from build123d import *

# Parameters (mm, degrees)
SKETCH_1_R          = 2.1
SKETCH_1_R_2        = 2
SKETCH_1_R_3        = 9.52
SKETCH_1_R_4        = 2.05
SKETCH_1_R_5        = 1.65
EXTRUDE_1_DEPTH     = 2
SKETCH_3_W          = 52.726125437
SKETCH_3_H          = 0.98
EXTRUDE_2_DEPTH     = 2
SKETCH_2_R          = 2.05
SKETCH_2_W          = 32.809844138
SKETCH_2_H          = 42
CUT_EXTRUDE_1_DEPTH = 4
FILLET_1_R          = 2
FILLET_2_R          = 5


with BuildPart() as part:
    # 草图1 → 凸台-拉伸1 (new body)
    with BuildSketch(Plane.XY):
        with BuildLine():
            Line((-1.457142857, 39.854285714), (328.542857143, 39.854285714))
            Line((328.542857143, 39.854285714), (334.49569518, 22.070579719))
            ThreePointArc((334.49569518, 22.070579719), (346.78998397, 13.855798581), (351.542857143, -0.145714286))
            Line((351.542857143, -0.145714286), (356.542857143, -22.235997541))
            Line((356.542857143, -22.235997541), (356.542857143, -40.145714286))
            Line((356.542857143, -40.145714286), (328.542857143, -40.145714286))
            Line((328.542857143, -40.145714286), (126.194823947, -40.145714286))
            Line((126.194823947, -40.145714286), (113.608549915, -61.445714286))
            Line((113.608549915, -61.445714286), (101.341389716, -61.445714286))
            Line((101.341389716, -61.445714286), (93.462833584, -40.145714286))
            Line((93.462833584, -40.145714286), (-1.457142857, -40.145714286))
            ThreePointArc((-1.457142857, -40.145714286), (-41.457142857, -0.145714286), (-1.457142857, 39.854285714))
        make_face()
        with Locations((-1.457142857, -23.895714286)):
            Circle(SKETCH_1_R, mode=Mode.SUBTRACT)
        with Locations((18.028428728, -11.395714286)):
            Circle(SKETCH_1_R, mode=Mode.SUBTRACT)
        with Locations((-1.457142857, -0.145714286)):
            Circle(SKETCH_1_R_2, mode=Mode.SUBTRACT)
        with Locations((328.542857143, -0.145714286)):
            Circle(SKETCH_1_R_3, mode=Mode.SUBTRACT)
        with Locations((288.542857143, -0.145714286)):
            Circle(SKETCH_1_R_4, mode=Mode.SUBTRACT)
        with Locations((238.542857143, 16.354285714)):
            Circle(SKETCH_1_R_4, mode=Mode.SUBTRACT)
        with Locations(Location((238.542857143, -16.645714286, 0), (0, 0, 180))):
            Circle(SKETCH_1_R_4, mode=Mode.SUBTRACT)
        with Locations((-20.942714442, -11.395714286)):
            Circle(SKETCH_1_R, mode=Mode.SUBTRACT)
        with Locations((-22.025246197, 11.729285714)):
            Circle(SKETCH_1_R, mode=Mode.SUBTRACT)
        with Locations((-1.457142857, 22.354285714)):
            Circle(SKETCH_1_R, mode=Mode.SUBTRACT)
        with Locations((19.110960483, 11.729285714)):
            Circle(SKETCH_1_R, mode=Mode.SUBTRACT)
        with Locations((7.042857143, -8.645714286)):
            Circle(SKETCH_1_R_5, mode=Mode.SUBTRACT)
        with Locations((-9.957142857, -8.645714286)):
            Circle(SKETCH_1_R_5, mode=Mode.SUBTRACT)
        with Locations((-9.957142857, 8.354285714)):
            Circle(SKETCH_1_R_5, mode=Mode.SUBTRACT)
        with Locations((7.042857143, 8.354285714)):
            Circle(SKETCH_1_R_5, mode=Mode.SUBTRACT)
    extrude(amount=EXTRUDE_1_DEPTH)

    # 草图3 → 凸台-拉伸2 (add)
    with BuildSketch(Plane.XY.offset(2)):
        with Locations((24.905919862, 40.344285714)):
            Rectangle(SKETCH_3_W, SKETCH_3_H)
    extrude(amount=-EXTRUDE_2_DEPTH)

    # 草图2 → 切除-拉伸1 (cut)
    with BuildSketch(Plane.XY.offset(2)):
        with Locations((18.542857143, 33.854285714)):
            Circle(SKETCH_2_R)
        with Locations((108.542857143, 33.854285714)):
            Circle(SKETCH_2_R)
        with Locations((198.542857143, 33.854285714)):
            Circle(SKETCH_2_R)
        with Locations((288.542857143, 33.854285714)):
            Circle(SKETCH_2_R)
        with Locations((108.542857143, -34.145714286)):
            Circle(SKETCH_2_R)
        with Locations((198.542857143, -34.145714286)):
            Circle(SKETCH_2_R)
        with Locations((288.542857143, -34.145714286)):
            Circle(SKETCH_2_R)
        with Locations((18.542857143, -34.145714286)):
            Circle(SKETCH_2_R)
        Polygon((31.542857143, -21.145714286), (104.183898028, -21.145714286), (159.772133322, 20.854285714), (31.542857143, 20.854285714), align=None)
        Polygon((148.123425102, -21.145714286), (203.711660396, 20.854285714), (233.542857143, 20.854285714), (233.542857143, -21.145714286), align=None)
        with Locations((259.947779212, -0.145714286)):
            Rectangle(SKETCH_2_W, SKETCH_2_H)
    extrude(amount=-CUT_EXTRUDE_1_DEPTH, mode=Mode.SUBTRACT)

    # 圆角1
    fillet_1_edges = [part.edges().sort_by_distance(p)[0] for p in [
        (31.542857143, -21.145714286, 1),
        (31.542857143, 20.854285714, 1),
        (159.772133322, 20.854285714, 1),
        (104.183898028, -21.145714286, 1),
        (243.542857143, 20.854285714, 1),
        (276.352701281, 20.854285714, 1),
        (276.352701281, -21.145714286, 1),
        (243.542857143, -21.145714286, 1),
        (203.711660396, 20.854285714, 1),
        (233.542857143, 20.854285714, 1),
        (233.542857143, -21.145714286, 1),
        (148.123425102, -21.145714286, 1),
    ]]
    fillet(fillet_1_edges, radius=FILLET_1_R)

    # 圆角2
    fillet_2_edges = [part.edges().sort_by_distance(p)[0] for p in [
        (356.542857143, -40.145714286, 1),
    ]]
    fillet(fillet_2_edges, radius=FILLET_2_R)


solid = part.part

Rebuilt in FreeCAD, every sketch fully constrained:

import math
import FreeCAD as App
import Part
import Sketcher


def edges_at(feature, points):
    """Names of the edges that pass closest to the given points."""
    edges = feature.Shape.Edges
    near = lambda p: min(range(len(edges)), key=lambda i: edges[i].distToShape(Part.Vertex(*p))[0])
    return sorted({f"Edge{near(p) + 1}" for p in points})


def add_polygon(sketch, points):
    """Adds a closed chain of lines whose ends are joined by coincident constraints."""
    first, n = sketch.GeometryCount, len(points)
    for a, b in zip(points, points[1:] + points[:1]):
        sketch.addGeometry(Part.LineSegment(App.Vector(*a, 0), App.Vector(*b, 0)), False)
    for i in range(n):
        sketch.addConstraint(Sketcher.Constraint("Coincident", first + i, 2, first + (i + 1) % n, 1))

doc = App.newDocument("Part")
body = doc.addObject("PartDesign::Body", "Body")

# Sketch on XY plane
sketch1 = body.newObject("Sketcher::SketchObject", "Sketch")
sketch1.AttachmentSupport = (doc.getObject("XY_Plane"), [""])
sketch1.MapMode = "FlatFace"
sketch1.addGeometry(Part.LineSegment(App.Vector(328.542857, 39.854286, 0), App.Vector(-1.457143, 39.854286, 0)), False)
sketch1.addGeometry(Part.ArcOfCircle(Part.Circle(App.Vector(-1.457143, -0.145714, 0), App.Vector(0, 0, 1), 40), math.radians(90), math.radians(270)), False)
sketch1.addGeometry(Part.LineSegment(App.Vector(-1.457143, -40.145714, 0), App.Vector(93.462834, -40.145714, 0)), False)
sketch1.addGeometry(Part.LineSegment(App.Vector(93.462834, -40.145714, 0), App.Vector(101.34139, -61.445714, 0)), False)
sketch1.addGeometry(Part.LineSegment(App.Vector(101.34139, -61.445714, 0), App.Vector(113.60855, -61.445714, 0)), False)
sketch1.addGeometry(Part.LineSegment(App.Vector(113.60855, -61.445714, 0), App.Vector(126.194824, -40.145714, 0)), False)
sketch1.addGeometry(Part.LineSegment(App.Vector(126.194824, -40.145714, 0), App.Vector(356.542857, -40.145714, 0)), False)
sketch1.addGeometry(Part.LineSegment(App.Vector(356.542857, -40.145714, 0), App.Vector(356.542857, -22.235998, 0)), False)
sketch1.addGeometry(Part.LineSegment(App.Vector(356.542857, -22.235998, 0), App.Vector(351.542857, -0.145714, 0)), False)
sketch1.addGeometry(Part.ArcOfCircle(Part.Circle(App.Vector(328.542857, -0.145714, 0), App.Vector(0, 0, 1), 23), math.radians(0), math.radians(75)), False)
sketch1.addGeometry(Part.LineSegment(App.Vector(334.495695, 22.07058, 0), App.Vector(328.542857, 39.854286, 0)), False)
sketch1.addGeometry(Part.Circle(App.Vector(238.542857, -16.645714, 0), App.Vector(0, 0, 1), 2.05), False)
sketch1.addGeometry(Part.Circle(App.Vector(-1.457143, -23.895714, 0), App.Vector(0, 0, 1), 2.1), False)
sketch1.addGeometry(Part.Circle(App.Vector(18.028429, -11.395714, 0), App.Vector(0, 0, 1), 2.1), False)
sketch1.addGeometry(Part.Circle(App.Vector(-20.942714, -11.395714, 0), App.Vector(0, 0, 1), 2.1), False)
sketch1.addGeometry(Part.Circle(App.Vector(7.042857, -8.645714, 0), App.Vector(0, 0, 1), 1.65), False)
sketch1.addGeometry(Part.Circle(App.Vector(-9.957143, -8.645714, 0), App.Vector(0, 0, 1), 1.65), False)
sketch1.addGeometry(Part.Circle(App.Vector(328.542857, -0.145714, 0), App.Vector(0, 0, 1), 9.52), False)
sketch1.addGeometry(Part.Circle(App.Vector(288.542857, -0.145714, 0), App.Vector(0, 0, 1), 2.05), False)
sketch1.addGeometry(Part.Circle(App.Vector(238.542857, 16.354286, 0), App.Vector(0, 0, 1), 2.05), False)
sketch1.addGeometry(Part.Circle(App.Vector(-1.457143, -0.145714, 0), App.Vector(0, 0, 1), 2), False)
sketch1.addGeometry(Part.Circle(App.Vector(7.042857, 8.354286, 0), App.Vector(0, 0, 1), 1.65), False)
sketch1.addGeometry(Part.Circle(App.Vector(-9.957143, 8.354286, 0), App.Vector(0, 0, 1), 1.65), False)
sketch1.addGeometry(Part.Circle(App.Vector(19.11096, 11.729286, 0), App.Vector(0, 0, 1), 2.1), False)
sketch1.addGeometry(Part.Circle(App.Vector(-22.025246, 11.729286, 0), App.Vector(0, 0, 1), 2.1), False)
sketch1.addGeometry(Part.Circle(App.Vector(-1.457143, 22.354286, 0), App.Vector(0, 0, 1), 2.1), False)
sketch1.addConstraint(Sketcher.Constraint("Tangent", 0, 2, 1, 1))
sketch1.addConstraint(Sketcher.Constraint("Tangent", 1, 2, 2, 1))
sketch1.addConstraint(Sketcher.Constraint("Coincident", 2, 2, 3, 1))
sketch1.addConstraint(Sketcher.Constraint("Coincident", 3, 2, 4, 1))
sketch1.addConstraint(Sketcher.Constraint("Coincident", 4, 2, 5, 1))
sketch1.addConstraint(Sketcher.Constraint("Coincident", 5, 2, 6, 1))
sketch1.addConstraint(Sketcher.Constraint("Coincident", 6, 2, 7, 1))
sketch1.addConstraint(Sketcher.Constraint("Coincident", 7, 2, 8, 1))
sketch1.addConstraint(Sketcher.Constraint("Coincident", 8, 2, 9, 1))
sketch1.addConstraint(Sketcher.Constraint("Coincident", 9, 2, 10, 1))
sketch1.addConstraint(Sketcher.Constraint("Coincident", 10, 2, 0, 1))
sketch1.addConstraint(Sketcher.Constraint("Horizontal", 0))
sketch1.addConstraint(Sketcher.Constraint("Horizontal", 2))
sketch1.addConstraint(Sketcher.Constraint("Horizontal", 4))
sketch1.addConstraint(Sketcher.Constraint("Horizontal", 6))
sketch1.addConstraint(Sketcher.Constraint("Vertical", 7))
sketch1.addConstraint(Sketcher.Constraint("Coincident", 17, 3, 9, 3))
sketch1.addConstraint(Sketcher.Constraint("Coincident", 20, 3, 1, 3))
sketch1.addConstraint(Sketcher.Constraint("Equal", 12, 13))
sketch1.addConstraint(Sketcher.Constraint("Equal", 13, 14))
sketch1.addConstraint(Sketcher.Constraint("Equal", 15, 16))
sketch1.addConstraint(Sketcher.Constraint("Equal", 11, 18))
sketch1.addConstraint(Sketcher.Constraint("Equal", 18, 19))
sketch1.addConstraint(Sketcher.Constraint("Equal", 16, 21))
sketch1.addConstraint(Sketcher.Constraint("Equal", 21, 22))
sketch1.addConstraint(Sketcher.Constraint("Equal", 14, 23))
sketch1.addConstraint(Sketcher.Constraint("Equal", 23, 24))
sketch1.addConstraint(Sketcher.Constraint("Equal", 24, 25))
sketch1.addConstraint(Sketcher.Constraint("Horizontal", 1, 3, 9, 3))
sketch1.addConstraint(Sketcher.Constraint("Horizontal", 13, 3, 14, 3))
sketch1.addConstraint(Sketcher.Constraint("Horizontal", 15, 3, 16, 3))
sketch1.addConstraint(Sketcher.Constraint("Horizontal", 17, 3, 18, 3))
sketch1.addConstraint(Sketcher.Constraint("Horizontal", 21, 3, 22, 3))
sketch1.addConstraint(Sketcher.Constraint("Horizontal", 23, 3, 24, 3))
sketch1.addConstraint(Sketcher.Constraint("Horizontal", 2, 2, 5, 2))
sketch1.addConstraint(Sketcher.Constraint("Horizontal", 20, 3, 8, 2))
sketch1.addConstraint(Sketcher.Constraint("Vertical", 1, 3, 12, 3))
sketch1.addConstraint(Sketcher.Constraint("Vertical", 11, 3, 19, 3))
sketch1.addConstraint(Sketcher.Constraint("Vertical", 15, 3, 21, 3))
sketch1.addConstraint(Sketcher.Constraint("Vertical", 16, 3, 22, 3))
sketch1.addConstraint(Sketcher.Constraint("Vertical", 20, 3, 25, 3))
sketch1.addConstraint(Sketcher.Constraint("Vertical", 17, 3, 10, 2))
sketch1.addConstraint(Sketcher.Constraint("Diameter", 20, 4.0))
sketch1.addConstraint(Sketcher.Constraint("Radius", 1, 40.0))
sketch1.addConstraint(Sketcher.Constraint("Radius", 9, 23.0))
sketch1.addConstraint(Sketcher.Constraint("Diameter", 11, 4.1))
sketch1.addConstraint(Sketcher.Constraint("Diameter", 12, 4.2))
sketch1.addConstraint(Sketcher.Constraint("Diameter", 15, 3.3))
sketch1.addConstraint(Sketcher.Constraint("Diameter", 17, 19.04))
sketch1.addConstraint(Sketcher.Constraint("DistanceX", 0, 2, 0, 1, 330.0))
sketch1.addConstraint(Sketcher.Constraint("DistanceX", 11, 3, 9, 3, 90.0))
sketch1.addConstraint(Sketcher.Constraint("DistanceY", 11, 3, 15, 3, 8.0))
sketch1.addConstraint(Sketcher.Constraint("DistanceX", 16, 3, 15, 3, 17.0))
sketch1.addConstraint(Sketcher.Constraint("DistanceX", 18, 3, 9, 3, 40.0))
sketch1.addConstraint(Sketcher.Constraint("DistanceY", 11, 3, 19, 3, 33.0))
sketch1.addConstraint(Sketcher.Constraint("DistanceY", 15, 3, 21, 3, 17.0))
sketch1.addConstraint(Sketcher.Constraint("DistanceY", 21, 3, 25, 3, 14.0))
sketch1.addConstraint(Sketcher.Constraint("DistanceX", 9, 3, 6, 2, 28.0))
sketch1.addConstraint(Sketcher.Constraint("DistanceY", 11, 3, 9, 3, 16.5))
sketch1.addConstraint(Sketcher.Constraint("DistanceY", 12, 3, 13, 3, 12.5))
sketch1.addConstraint(Sketcher.Constraint("DistanceX", 1, 3, 15, 3, 8.5))
sketch1.addConstraint(Sketcher.Constraint("DistanceY", 3, 2, 2, 2, 21.3))
sketch1.addConstraint(Sketcher.Constraint("DistanceY", 12, 3, 1, 3, 23.75))
sketch1.addConstraint(Sketcher.Constraint("DistanceY", 21, 3, 23, 3, 3.375))
sketch1.addConstraint(Sketcher.Constraint("DistanceX", 4, 1, 4, 2, 12.26716))
sketch1.addConstraint(Sketcher.Constraint("Distance", 5, 24.740742))
sketch1.addConstraint(Sketcher.Constraint("DistanceX", 2, 1, 2, 2, 94.919976))
sketch1.addConstraint(Sketcher.Constraint("DistanceX", 6, 1, 6, 2, 230.348033))
sketch1.addConstraint(Sketcher.Constraint("DistanceY", 7, 1, 7, 2, 17.909717))
sketch1.addConstraint(Sketcher.Constraint("DistanceX", -1, 1, 13, 3, 18.028429))
sketch1.addConstraint(Sketcher.Constraint("DistanceX", -1, 1, 23, 3, 19.11096))
sketch1.addConstraint(Sketcher.Constraint("DistanceX", -1, 1, 3, 2, 101.34139))
sketch1.addConstraint(Sketcher.Constraint("DistanceY", -1, 1, 9, 2, 22.07058))
sketch1.addConstraint(Sketcher.Constraint("DistanceX", 14, 3, 1, 3, 19.485572))
sketch1.addConstraint(Sketcher.Constraint("DistanceX", 24, 3, 14, 3, 1.082532))
sketch1.addConstraint(Sketcher.Constraint("DistanceX", 9, 3, 9, 2, 5.952838))
pad1 = body.newObject("PartDesign::Pad", "Pad")
pad1.Profile = sketch1
pad1.Length = 2

# Sketch on XY plane
sketch2 = body.newObject("Sketcher::SketchObject", "Sketch001")
sketch2.AttachmentSupport = (doc.getObject("XY_Plane"), [""])
sketch2.MapMode = "FlatFace"
sketch2.AttachmentOffset = App.Placement(App.Vector(0, 0, 2), App.Rotation())
add_polygon(sketch2, [(-1.457143, 40.834286), (-1.457143, 39.854286), (51.268983, 39.854286), (51.268983, 40.834286)])  # lines 0-3
sketch2.addConstraint(Sketcher.Constraint("Vertical", 0))
sketch2.addConstraint(Sketcher.Constraint("Horizontal", 1))
sketch2.addConstraint(Sketcher.Constraint("Vertical", 2))
sketch2.addConstraint(Sketcher.Constraint("Horizontal", 3))
sketch2.addConstraint(Sketcher.Constraint("DistanceY", 0, 2, 0, 1, 0.98))
sketch2.addConstraint(Sketcher.Constraint("DistanceX", 1, 1, 1, 2, 52.726125))
sketch2.addConstraint(Sketcher.Constraint("DistanceX", 0, 2, -1, 1, 1.457143))
sketch2.addConstraint(Sketcher.Constraint("DistanceY", -1, 1, 0, 2, 39.854286))
pad2 = body.newObject("PartDesign::Pad", "Pad001")
pad2.Profile = sketch2
pad2.Length = 2
pad2.Reversed = True

# Sketch on XY plane
sketch3 = body.newObject("Sketcher::SketchObject", "Sketch002")
sketch3.AttachmentSupport = (doc.getObject("XY_Plane"), [""])
sketch3.MapMode = "FlatFace"
sketch3.AttachmentOffset = App.Placement(App.Vector(0, 0, 2), App.Rotation())
sketch3.addGeometry(Part.Circle(App.Vector(18.542857, 33.854286, 0), App.Vector(0, 0, 1), 2.05), False)  # 0
sketch3.addGeometry(Part.Circle(App.Vector(108.542857, 33.854286, 0), App.Vector(0, 0, 1), 2.05), False)  # 1
sketch3.addGeometry(Part.Circle(App.Vector(198.542857, 33.854286, 0), App.Vector(0, 0, 1), 2.05), False)  # 2
sketch3.addGeometry(Part.Circle(App.Vector(288.542857, 33.854286, 0), App.Vector(0, 0, 1), 2.05), False)  # 3
sketch3.addGeometry(Part.Circle(App.Vector(108.542857, -34.145714, 0), App.Vector(0, 0, 1), 2.05), False)  # 4
sketch3.addGeometry(Part.Circle(App.Vector(198.542857, -34.145714, 0), App.Vector(0, 0, 1), 2.05), False)  # 5
sketch3.addGeometry(Part.Circle(App.Vector(288.542857, -34.145714, 0), App.Vector(0, 0, 1), 2.05), False)  # 6
sketch3.addGeometry(Part.Circle(App.Vector(18.542857, -34.145714, 0), App.Vector(0, 0, 1), 2.05), False)  # 7
add_polygon(sketch3, [(31.542857, -21.145714), (104.183898, -21.145714), (159.772133, 20.854286), (31.542857, 20.854286)])  # lines 8-11
add_polygon(sketch3, [(203.71166, 20.854286), (148.123425, -21.145714), (233.542857, -21.145714), (233.542857, 20.854286)])  # lines 12-15
add_polygon(sketch3, [(243.542857, 20.854286), (243.542857, -21.145714), (276.352701, -21.145714), (276.352701, 20.854286)])  # lines 16-19
sketch3.addConstraint(Sketcher.Constraint("Horizontal", 8))
sketch3.addConstraint(Sketcher.Constraint("Horizontal", 10))
sketch3.addConstraint(Sketcher.Constraint("Vertical", 11))
sketch3.addConstraint(Sketcher.Constraint("Horizontal", 13))
sketch3.addConstraint(Sketcher.Constraint("Vertical", 14))
sketch3.addConstraint(Sketcher.Constraint("Horizontal", 15))
sketch3.addConstraint(Sketcher.Constraint("Vertical", 16))
sketch3.addConstraint(Sketcher.Constraint("Horizontal", 17))
sketch3.addConstraint(Sketcher.Constraint("Vertical", 18))
sketch3.addConstraint(Sketcher.Constraint("Horizontal", 19))
sketch3.addConstraint(Sketcher.Constraint("Equal", 0, 1))
sketch3.addConstraint(Sketcher.Constraint("Equal", 1, 2))
sketch3.addConstraint(Sketcher.Constraint("Equal", 2, 3))
sketch3.addConstraint(Sketcher.Constraint("Equal", 3, 4))
sketch3.addConstraint(Sketcher.Constraint("Equal", 4, 5))
sketch3.addConstraint(Sketcher.Constraint("Equal", 5, 6))
sketch3.addConstraint(Sketcher.Constraint("Equal", 6, 7))
sketch3.addConstraint(Sketcher.Constraint("Parallel", 9, 12))
sketch3.addConstraint(Sketcher.Constraint("Horizontal", 0, 3, 1, 3))
sketch3.addConstraint(Sketcher.Constraint("Horizontal", 1, 3, 2, 3))
sketch3.addConstraint(Sketcher.Constraint("Horizontal", 2, 3, 3, 3))
sketch3.addConstraint(Sketcher.Constraint("Horizontal", 4, 3, 5, 3))
sketch3.addConstraint(Sketcher.Constraint("Horizontal", 5, 3, 6, 3))
sketch3.addConstraint(Sketcher.Constraint("Horizontal", 6, 3, 7, 3))
sketch3.addConstraint(Sketcher.Constraint("Horizontal", 11, 2, 12, 2))
sketch3.addConstraint(Sketcher.Constraint("Horizontal", 10, 2, 14, 2))
sketch3.addConstraint(Sketcher.Constraint("Horizontal", 13, 2, 16, 2))
sketch3.addConstraint(Sketcher.Constraint("Horizontal", 15, 2, 18, 2))
sketch3.addConstraint(Sketcher.Constraint("Vertical", 1, 3, 4, 3))
sketch3.addConstraint(Sketcher.Constraint("Vertical", 2, 3, 5, 3))
sketch3.addConstraint(Sketcher.Constraint("Vertical", 3, 3, 6, 3))
sketch3.addConstraint(Sketcher.Constraint("Vertical", 0, 3, 7, 3))
sketch3.addConstraint(Sketcher.Constraint("Diameter", 0, 4.1))
sketch3.addConstraint(Sketcher.Constraint("DistanceY", 11, 2, 11, 1, 42.0))
sketch3.addConstraint(Sketcher.Constraint("DistanceX", 0, 3, 1, 3, 90.0))
sketch3.addConstraint(Sketcher.Constraint("DistanceX", 1, 3, 2, 3, 90.0))
sketch3.addConstraint(Sketcher.Constraint("DistanceX", 2, 3, 3, 3, 90.0))
sketch3.addConstraint(Sketcher.Constraint("DistanceY", 4, 3, 1, 3, 68.0))
sketch3.addConstraint(Sketcher.Constraint("DistanceY", 4, 3, 8, 2, 13.0))
sketch3.addConstraint(Sketcher.Constraint("DistanceX", 0, 3, 10, 2, 13.0))
sketch3.addConstraint(Sketcher.Constraint("DistanceX", 5, 3, 13, 2, 35.0))
sketch3.addConstraint(Sketcher.Constraint("DistanceX", 13, 2, 16, 2, 10.0))
sketch3.addConstraint(Sketcher.Constraint("DistanceX", 8, 1, 8, 2, 72.641041))
sketch3.addConstraint(Sketcher.Constraint("DistanceX", -1, 1, 8, 2, 104.183898))
sketch3.addConstraint(Sketcher.Constraint("DistanceX", -1, 1, 17, 2, 276.352701))
sketch3.addConstraint(Sketcher.Constraint("DistanceX", 10, 2, 10, 1, 128.229276))
sketch3.addConstraint(Sketcher.Constraint("DistanceX", 13, 1, 13, 2, 85.419432))
sketch3.addConstraint(Sketcher.Constraint("DistanceY", -1, 1, 0, 3, 33.854286))
pocket1 = body.newObject("PartDesign::Pocket", "Pocket")
pocket1.Profile = sketch3
pocket1.Length = 4
doc.recompute()

fillet = body.newObject("PartDesign::Fillet", "Fillet")
fillet.Base = (pocket1, edges_at(pocket1, [
    (31.543, -21.146, 1),
    (31.543, 20.854, 1),
    (159.772, 20.854, 1),
    (104.184, -21.146, 1),
    (243.543, 20.854, 1),
    (276.353, 20.854, 1),
    (276.353, -21.146, 1),
    (243.543, -21.146, 1),
    (203.712, 20.854, 1),
    (233.543, 20.854, 1),
    (233.543, -21.146, 1),
    (148.123, -21.146, 1),
]))
fillet.Radius = 2
doc.recompute()

fillet2 = body.newObject("PartDesign::Fillet", "Fillet001")
fillet2.Base = (fillet, edges_at(fillet, [(356.543, -40.146, 1)]))
fillet2.Radius = 5

doc.recompute()
